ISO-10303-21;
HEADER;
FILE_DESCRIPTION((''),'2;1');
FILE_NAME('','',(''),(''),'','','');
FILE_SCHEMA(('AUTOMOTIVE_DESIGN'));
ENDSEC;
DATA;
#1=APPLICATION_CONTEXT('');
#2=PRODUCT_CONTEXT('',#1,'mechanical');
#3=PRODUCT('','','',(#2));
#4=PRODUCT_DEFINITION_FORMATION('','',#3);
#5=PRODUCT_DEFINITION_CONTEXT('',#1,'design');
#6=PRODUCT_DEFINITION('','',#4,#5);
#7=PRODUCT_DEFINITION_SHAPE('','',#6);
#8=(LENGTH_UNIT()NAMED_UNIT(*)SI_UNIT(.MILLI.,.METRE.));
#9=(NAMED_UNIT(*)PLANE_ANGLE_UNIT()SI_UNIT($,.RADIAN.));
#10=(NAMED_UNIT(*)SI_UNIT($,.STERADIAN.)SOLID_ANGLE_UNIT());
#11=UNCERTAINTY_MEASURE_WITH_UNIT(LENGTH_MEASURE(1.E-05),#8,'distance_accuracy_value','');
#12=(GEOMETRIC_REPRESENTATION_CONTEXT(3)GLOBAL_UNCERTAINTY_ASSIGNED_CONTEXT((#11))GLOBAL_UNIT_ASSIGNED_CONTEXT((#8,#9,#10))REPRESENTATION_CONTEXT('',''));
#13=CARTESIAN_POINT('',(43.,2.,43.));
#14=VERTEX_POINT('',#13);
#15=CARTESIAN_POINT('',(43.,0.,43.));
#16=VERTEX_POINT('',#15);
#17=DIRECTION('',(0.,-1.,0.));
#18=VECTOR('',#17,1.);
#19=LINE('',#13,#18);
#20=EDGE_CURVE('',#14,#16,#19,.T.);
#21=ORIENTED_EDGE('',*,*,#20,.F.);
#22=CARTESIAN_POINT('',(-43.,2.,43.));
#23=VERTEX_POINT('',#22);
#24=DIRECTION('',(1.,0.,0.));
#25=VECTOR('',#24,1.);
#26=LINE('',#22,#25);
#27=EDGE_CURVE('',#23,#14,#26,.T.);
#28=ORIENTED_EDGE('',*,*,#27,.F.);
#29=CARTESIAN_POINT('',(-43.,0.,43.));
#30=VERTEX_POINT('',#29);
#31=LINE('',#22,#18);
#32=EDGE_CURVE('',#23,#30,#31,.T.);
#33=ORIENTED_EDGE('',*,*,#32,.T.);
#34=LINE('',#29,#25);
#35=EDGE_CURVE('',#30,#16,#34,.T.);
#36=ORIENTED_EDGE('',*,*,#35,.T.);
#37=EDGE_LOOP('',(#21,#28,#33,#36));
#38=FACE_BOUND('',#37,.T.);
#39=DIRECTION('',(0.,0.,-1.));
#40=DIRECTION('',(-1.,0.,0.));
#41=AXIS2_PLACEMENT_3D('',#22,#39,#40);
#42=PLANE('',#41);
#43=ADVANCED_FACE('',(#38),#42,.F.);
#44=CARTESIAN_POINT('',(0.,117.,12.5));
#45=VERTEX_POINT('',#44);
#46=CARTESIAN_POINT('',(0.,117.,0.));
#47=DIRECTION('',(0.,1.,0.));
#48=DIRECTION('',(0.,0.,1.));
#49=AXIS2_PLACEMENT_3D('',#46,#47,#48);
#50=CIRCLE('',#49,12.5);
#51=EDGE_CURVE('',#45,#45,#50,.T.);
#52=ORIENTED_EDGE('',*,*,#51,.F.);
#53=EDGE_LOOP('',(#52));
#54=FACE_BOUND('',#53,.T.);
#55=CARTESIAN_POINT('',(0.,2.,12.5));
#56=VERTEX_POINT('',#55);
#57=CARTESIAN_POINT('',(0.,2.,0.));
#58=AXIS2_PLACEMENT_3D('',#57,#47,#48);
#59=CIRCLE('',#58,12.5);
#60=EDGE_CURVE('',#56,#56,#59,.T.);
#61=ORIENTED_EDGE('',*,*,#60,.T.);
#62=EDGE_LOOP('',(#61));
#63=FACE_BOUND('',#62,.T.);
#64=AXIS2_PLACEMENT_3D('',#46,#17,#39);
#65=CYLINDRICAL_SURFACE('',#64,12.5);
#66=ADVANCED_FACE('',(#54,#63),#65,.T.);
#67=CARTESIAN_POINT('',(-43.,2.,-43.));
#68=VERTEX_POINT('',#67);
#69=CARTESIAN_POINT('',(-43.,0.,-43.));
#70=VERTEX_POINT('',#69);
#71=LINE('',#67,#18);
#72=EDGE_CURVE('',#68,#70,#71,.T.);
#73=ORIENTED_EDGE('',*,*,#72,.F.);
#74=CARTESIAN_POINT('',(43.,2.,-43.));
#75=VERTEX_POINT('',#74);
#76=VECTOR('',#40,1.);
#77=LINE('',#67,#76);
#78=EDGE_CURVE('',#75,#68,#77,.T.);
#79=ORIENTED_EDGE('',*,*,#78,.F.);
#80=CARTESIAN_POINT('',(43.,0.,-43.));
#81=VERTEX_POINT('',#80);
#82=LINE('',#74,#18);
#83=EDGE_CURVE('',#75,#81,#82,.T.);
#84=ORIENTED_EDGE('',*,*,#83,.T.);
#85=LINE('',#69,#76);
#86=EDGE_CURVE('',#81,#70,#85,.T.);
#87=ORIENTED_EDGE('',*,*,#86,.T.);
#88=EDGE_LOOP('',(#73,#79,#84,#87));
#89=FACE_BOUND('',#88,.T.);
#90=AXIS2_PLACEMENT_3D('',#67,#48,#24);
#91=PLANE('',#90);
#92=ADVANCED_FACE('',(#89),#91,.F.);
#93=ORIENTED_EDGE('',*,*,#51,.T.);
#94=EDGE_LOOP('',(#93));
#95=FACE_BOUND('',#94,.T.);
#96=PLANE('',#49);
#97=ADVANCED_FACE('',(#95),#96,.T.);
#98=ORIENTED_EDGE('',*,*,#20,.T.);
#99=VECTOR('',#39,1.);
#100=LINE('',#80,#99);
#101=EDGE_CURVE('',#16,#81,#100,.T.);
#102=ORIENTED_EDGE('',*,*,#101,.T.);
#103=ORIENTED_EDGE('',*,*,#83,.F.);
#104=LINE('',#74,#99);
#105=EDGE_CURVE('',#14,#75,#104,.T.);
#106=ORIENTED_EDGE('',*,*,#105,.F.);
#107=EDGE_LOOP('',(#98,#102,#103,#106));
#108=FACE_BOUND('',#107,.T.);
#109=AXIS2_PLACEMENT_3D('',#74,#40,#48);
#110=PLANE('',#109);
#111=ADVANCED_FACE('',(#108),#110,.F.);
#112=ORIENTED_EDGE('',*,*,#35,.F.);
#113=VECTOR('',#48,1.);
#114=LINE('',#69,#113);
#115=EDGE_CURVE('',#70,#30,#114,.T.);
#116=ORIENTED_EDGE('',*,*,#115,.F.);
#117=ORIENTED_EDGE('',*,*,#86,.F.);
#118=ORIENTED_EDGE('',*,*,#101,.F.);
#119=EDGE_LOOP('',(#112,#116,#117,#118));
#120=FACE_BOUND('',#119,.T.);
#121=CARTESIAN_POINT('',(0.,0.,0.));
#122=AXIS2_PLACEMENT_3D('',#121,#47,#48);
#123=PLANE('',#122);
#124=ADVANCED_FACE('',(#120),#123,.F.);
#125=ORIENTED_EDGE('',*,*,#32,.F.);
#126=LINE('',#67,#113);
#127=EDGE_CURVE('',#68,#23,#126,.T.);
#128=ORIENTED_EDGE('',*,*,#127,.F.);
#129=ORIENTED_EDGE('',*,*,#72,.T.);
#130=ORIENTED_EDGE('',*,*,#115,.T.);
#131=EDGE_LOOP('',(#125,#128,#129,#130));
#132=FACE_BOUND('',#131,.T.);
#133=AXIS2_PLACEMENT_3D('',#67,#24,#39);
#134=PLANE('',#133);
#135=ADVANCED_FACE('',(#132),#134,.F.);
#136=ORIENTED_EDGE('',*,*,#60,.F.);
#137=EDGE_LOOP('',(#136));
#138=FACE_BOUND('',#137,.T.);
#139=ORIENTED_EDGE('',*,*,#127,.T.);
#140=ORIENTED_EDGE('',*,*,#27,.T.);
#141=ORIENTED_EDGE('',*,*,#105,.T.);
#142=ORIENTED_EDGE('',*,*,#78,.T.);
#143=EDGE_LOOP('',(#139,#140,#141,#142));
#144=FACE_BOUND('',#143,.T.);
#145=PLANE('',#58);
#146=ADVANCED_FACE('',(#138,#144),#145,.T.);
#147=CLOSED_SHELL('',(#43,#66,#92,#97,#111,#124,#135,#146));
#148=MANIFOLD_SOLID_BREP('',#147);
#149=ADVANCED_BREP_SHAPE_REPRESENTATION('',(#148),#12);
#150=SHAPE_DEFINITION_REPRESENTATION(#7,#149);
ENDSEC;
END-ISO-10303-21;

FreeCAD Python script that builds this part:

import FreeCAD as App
import Part
import Sketcher
Q = App.Units.Quantity

doc = App.newDocument("Part")
body = doc.addObject("PartDesign::Body", "Body")

sketch1 = body.newObject("Sketcher::SketchObject", "Sketch")
sketch1.AttachmentSupport = (doc.getObject("XZ_Plane"), [""])
sketch1.MapMode = "FlatFace"
sketch1.addGeometry([
    Part.LineSegment(App.Vector(-43, -43, 0), App.Vector(-43, 43, 0)),
    Part.LineSegment(App.Vector(-43, 43, 0), App.Vector(43, 43, 0)),
    Part.LineSegment(App.Vector(43, 43, 0), App.Vector(43, -43, 0)),
    Part.LineSegment(App.Vector(43, -43, 0), App.Vector(-43, -43, 0)),
], False)
sketch1.addConstraint([
    Sketcher.Constraint("Coincident", 0, 2, 1, 1),
    Sketcher.Constraint("Coincident", 1, 2, 2, 1),
    Sketcher.Constraint("Coincident", 2, 2, 3, 1),
    Sketcher.Constraint("Coincident", 3, 2, 0, 1),
    Sketcher.Constraint("Vertical", 0),
    Sketcher.Constraint("Horizontal", 1),
    Sketcher.Constraint("Vertical", 2),
    Sketcher.Constraint("Horizontal", 3),
    Sketcher.Constraint("Symmetric", 0, 2, 2, 2, -1, 1),
    Sketcher.Constraint("Equal", 3, 0),
    Sketcher.Constraint("DistanceX", 1, 1, 1, 2, Q("86 mm")),
])
pad1 = body.newObject("PartDesign::Pad", "Pad")
pad1.Profile = sketch1
pad1.Length = 2
pad1.Reversed = True

sketch2 = body.newObject("Sketcher::SketchObject", "Sketch001")
sketch2.AttachmentSupport = (doc.getObject("XZ_Plane"), [""])
sketch2.MapMode = "FlatFace"
sketch2.AttachmentOffset = App.Placement(App.Vector(0, 0, -2), App.Rotation())
sketch2.addGeometry(Part.Circle(App.Vector(0, 0, 0), App.Vector(0, 0, 1), 12), False)
sketch2.addConstraint([
    Sketcher.Constraint("Coincident", 0, 3, -1, 1),
    Sketcher.Constraint("Diameter", 0, Q("25 mm")),
])
pad2 = body.newObject("PartDesign::Pad", "Pad001")
pad2.Profile = sketch2
pad2.Length = 115
pad2.Reversed = True

doc.recompute()
